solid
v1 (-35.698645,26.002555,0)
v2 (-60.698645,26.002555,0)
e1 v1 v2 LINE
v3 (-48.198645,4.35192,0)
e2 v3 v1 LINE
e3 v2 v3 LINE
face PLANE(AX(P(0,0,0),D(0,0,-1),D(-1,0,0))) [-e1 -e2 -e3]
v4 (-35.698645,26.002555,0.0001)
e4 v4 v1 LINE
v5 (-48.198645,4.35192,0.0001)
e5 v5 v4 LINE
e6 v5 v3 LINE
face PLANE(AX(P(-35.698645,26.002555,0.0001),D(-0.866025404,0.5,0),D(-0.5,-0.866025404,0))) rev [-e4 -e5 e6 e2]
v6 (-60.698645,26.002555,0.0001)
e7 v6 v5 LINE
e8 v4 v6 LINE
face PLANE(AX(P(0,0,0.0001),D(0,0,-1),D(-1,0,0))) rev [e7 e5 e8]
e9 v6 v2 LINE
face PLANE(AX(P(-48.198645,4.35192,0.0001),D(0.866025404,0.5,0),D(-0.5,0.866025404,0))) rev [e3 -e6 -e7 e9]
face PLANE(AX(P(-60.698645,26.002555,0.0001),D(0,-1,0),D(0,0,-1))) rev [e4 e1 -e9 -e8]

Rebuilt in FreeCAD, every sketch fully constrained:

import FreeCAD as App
import Part
import Sketcher
Q = App.Units.Quantity

doc = App.newDocument("Part")
body = doc.addObject("PartDesign::Body", "Body")

sketch1 = doc.addObject("Sketcher::SketchObject", "Sketch")
body.addObject(sketch1)
sketch1.AttachmentSupport = (doc.XY_Plane, [""])
sketch1.MapMode = "FlatFace"
sketch1.addGeometry(Part.LineSegment(App.Vector(-36, 26, 0), App.Vector(-61, 26, 0)), False)
sketch1.addGeometry(Part.LineSegment(App.Vector(-61, 26, 0), App.Vector(-48, 4, 0)), False)
sketch1.addGeometry(Part.LineSegment(App.Vector(-48, 4, 0), App.Vector(-36, 26, 0)), False)
sketch1.addConstraint(Sketcher.Constraint("Coincident", 0, 2, 1, 1))
sketch1.addConstraint(Sketcher.Constraint("Coincident", 1, 2, 2, 1))
sketch1.addConstraint(Sketcher.Constraint("Coincident", 2, 2, 0, 1))
sketch1.addConstraint(Sketcher.Constraint("Horizontal", 0))
sketch1.addConstraint(Sketcher.Constraint("Equal", 1, 2))
sketch1.addConstraint(Sketcher.Constraint("DistanceX", 0, 2, 0, 1, 25.0))
sketch1.addConstraint(Sketcher.Constraint("Angle", 1, Q("-60 deg")))
sketch1.addConstraint(Sketcher.Constraint("DistanceY", -1, 1, 1, 2, 4.35192))
sketch1.addConstraint(Sketcher.Constraint("DistanceX", 0, 2, -1, 1, 60.698645))
pad1 = doc.addObject("PartDesign::Pad", "Pad")
body.addObject(pad1)
pad1.Profile = sketch1
pad1.Length = 0.0001

doc.recompute()
